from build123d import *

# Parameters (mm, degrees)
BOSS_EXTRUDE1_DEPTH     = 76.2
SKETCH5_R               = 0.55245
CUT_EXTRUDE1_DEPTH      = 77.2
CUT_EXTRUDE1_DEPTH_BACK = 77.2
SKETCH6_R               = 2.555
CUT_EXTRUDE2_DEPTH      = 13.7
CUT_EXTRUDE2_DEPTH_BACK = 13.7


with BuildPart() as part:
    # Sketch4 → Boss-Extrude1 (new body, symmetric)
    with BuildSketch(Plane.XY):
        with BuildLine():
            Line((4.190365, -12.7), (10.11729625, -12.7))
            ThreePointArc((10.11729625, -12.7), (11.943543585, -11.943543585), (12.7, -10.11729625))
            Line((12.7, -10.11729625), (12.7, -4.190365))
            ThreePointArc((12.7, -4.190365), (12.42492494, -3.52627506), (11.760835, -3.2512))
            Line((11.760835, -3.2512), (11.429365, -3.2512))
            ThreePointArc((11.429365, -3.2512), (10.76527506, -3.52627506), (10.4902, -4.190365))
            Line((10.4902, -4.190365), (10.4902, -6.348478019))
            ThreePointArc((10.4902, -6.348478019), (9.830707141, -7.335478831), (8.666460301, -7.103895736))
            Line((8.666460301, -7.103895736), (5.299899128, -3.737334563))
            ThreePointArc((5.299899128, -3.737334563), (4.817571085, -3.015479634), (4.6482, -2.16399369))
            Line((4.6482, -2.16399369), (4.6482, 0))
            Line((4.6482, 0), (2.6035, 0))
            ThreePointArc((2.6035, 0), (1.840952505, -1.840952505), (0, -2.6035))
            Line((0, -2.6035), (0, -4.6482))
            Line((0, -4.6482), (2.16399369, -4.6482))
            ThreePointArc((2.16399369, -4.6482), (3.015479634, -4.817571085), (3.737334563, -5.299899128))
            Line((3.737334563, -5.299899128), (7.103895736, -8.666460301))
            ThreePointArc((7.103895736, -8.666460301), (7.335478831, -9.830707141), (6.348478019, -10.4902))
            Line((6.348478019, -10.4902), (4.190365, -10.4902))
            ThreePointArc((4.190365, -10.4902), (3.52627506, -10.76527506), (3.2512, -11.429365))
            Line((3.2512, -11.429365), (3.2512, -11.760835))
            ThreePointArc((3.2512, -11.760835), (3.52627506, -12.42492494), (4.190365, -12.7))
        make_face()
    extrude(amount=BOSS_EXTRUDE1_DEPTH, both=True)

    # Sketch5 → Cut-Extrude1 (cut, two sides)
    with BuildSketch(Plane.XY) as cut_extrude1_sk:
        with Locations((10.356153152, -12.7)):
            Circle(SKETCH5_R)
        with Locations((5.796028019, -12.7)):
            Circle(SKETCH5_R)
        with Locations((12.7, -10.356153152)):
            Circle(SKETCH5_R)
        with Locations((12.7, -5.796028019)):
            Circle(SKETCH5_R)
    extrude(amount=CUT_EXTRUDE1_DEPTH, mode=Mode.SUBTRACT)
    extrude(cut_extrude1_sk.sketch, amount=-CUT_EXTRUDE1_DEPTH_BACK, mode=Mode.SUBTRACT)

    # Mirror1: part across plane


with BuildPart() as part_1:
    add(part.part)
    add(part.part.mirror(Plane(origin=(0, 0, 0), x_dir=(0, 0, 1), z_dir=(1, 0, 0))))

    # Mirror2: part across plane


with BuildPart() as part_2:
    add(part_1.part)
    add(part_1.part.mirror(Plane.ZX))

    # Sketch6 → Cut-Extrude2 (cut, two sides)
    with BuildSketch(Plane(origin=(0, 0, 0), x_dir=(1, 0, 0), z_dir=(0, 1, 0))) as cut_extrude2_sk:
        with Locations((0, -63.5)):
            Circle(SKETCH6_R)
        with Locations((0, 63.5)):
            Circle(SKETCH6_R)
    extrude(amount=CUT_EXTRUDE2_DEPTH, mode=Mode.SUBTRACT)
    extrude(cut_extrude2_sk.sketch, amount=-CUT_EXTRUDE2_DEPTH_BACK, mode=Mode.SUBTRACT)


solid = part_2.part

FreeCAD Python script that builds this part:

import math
import FreeCAD as App
import Part
import Sketcher
Q = App.Units.Quantity

doc = App.newDocument("Part")
params = doc.addObject("Spreadsheet::Sheet", "Params")
for row, (alias, value) in enumerate([
    ("pad1_length", "152.4 mm"),
    ("sketch3_diameter", "5.11 mm"),
], start=1):
    params.set(f"A{row}", alias)
    params.set(f"B{row}", "=" + value)
    params.setAlias(f"B{row}", alias)

body = doc.addObject("PartDesign::Body", "Body")

sketch1 = body.newObject("Sketcher::SketchObject", "Sketch")
sketch1.AttachmentSupport = (doc.getObject("XY_Plane"), [""])
sketch1.MapMode = "FlatFace"
sketch1.addGeometry([
    Part.LineSegment(App.Vector(4.19, -12.7, 0), App.Vector(10.12, -12.7, 0)),
    Part.ArcOfCircle(Part.Circle(App.Vector(10.12, -10.12, 0), App.Vector(0, 0, 1), 2.58), math.radians(-90), math.radians(0)),
    Part.LineSegment(App.Vector(12.7, -10.12, 0), App.Vector(12.7, -4.19, 0)),
    Part.ArcOfCircle(Part.Circle(App.Vector(11.76, -4.19, 0), App.Vector(0, 0, 1), 0.94), math.radians(0), math.radians(90)),
    Part.LineSegment(App.Vector(11.76, -3.25, 0), App.Vector(11.43, -3.25, 0)),
    Part.ArcOfCircle(Part.Circle(App.Vector(11.43, -4.19, 0), App.Vector(0, 0, 1), 0.94), math.radians(90), math.radians(180)),
    Part.LineSegment(App.Vector(10.49, -4.19, 0), App.Vector(10.49, -6.35, 0)),
    Part.ArcOfCircle(Part.Circle(App.Vector(9.42, -6.35, 0), App.Vector(0, 0, 1), 1.07), math.radians(-135), math.radians(0)),
    Part.LineSegment(App.Vector(8.67, -7.1, 0), App.Vector(5.3, -3.74, 0)),
    Part.ArcOfCircle(Part.Circle(App.Vector(6.87, -2.16, 0), App.Vector(0, 0, 1), 2.23), math.radians(-180), math.radians(-135)),
    Part.LineSegment(App.Vector(4.65, -2.16, 0), App.Vector(4.65, 0, 0)),
    Part.LineSegment(App.Vector(4.65, 0, 0), App.Vector(2.6, 0, 0)),
    Part.ArcOfCircle(Part.Circle(App.Vector(0, 0, 0), App.Vector(0, 0, 1), 2.6), math.radians(-90), math.radians(0)),
    Part.LineSegment(App.Vector(0, -2.6, 0), App.Vector(0, -4.65, 0)),
    Part.LineSegment(App.Vector(0, -4.65, 0), App.Vector(2.16, -4.65, 0)),
    Part.ArcOfCircle(Part.Circle(App.Vector(2.16, -6.87, 0), App.Vector(0, 0, 1), 2.23), math.radians(45), math.radians(90)),
    Part.LineSegment(App.Vector(3.74, -5.3, 0), App.Vector(7.1, -8.67, 0)),
    Part.ArcOfCircle(Part.Circle(App.Vector(6.35, -9.42, 0), App.Vector(0, 0, 1), 1.07), math.radians(-90), math.radians(45)),
    Part.LineSegment(App.Vector(6.35, -10.49, 0), App.Vector(4.19, -10.49, 0)),
    Part.ArcOfCircle(Part.Circle(App.Vector(4.19, -11.43, 0), App.Vector(0, 0, 1), 0.94), math.radians(90), math.radians(180)),
    Part.LineSegment(App.Vector(3.25, -11.43, 0), App.Vector(3.25, -11.76, 0)),
    Part.ArcOfCircle(Part.Circle(App.Vector(4.19, -11.76, 0), App.Vector(0, 0, 1), 0.94), math.radians(-180), math.radians(-90)),
], False)
sketch1.addConstraint([
    Sketcher.Constraint("Tangent", 0, 2, 1, 1),
    Sketcher.Constraint("Tangent", 1, 2, 2, 1),
    Sketcher.Constraint("Tangent", 2, 2, 3, 1),
    Sketcher.Constraint("Tangent", 3, 2, 4, 1),
    Sketcher.Constraint("Tangent", 4, 2, 5, 1),
    Sketcher.Constraint("Tangent", 5, 2, 6, 1),
    Sketcher.Constraint("Tangent", 6, 2, 7, 2),
    Sketcher.Constraint("Tangent", 7, 1, 8, 1),
    Sketcher.Constraint("Tangent", 8, 2, 9, 2),
    Sketcher.Constraint("Tangent", 9, 1, 10, 1),
    Sketcher.Constraint("Coincident", 10, 2, 11, 1),
    Sketcher.Constraint("Coincident", 11, 2, 12, 2),
    Sketcher.Constraint("Coincident", 12, 1, 13, 1),
    Sketcher.Constraint("Coincident", 13, 2, 14, 1),
    Sketcher.Constraint("Tangent", 14, 2, 15, 2),
    Sketcher.Constraint("Tangent", 15, 1, 16, 1),
    Sketcher.Constraint("Tangent", 16, 2, 17, 2),
    Sketcher.Constraint("Tangent", 17, 1, 18, 1),
    Sketcher.Constraint("Tangent", 18, 2, 19, 1),
    Sketcher.Constraint("Tangent", 19, 2, 20, 1),
    Sketcher.Constraint("Tangent", 20, 2, 21, 1),
    Sketcher.Constraint("Tangent", 21, 2, 0, 1),
    Sketcher.Constraint("Horizontal", 0),
    Sketcher.Constraint("Vertical", 2),
    Sketcher.Constraint("Horizontal", 4),
    Sketcher.Constraint("Vertical", 6),
    Sketcher.Constraint("Vertical", 10),
    Sketcher.Constraint("Horizontal", 11),
    Sketcher.Constraint("Vertical", 13),
    Sketcher.Constraint("Horizontal", 14),
    Sketcher.Constraint("Horizontal", 18),
    Sketcher.Constraint("Vertical", 20),
    Sketcher.Constraint("Coincident", 12, 3, -1, 1),
    Sketcher.Constraint("Equal", 3, 5),
    Sketcher.Constraint("Equal", 9, 15),
    Sketcher.Constraint("Equal", 7, 17),
    Sketcher.Constraint("Equal", 5, 19),
    Sketcher.Constraint("Equal", 19, 21),
    Sketcher.Constraint("PointOnObject", 10, 2, -1),
    Sketcher.Constraint("PointOnObject", 12, 1, -2),
    Sketcher.Constraint("Parallel", 8, 16),
    Sketcher.Constraint("Equal", 0, 2),
    Sketcher.Constraint("Equal", 18, 6),
    Sketcher.Constraint("Equal", 14, 10),
    Sketcher.Constraint("Equal", 11, 13),
    Sketcher.Constraint("Equal", 4, 20),
    Sketcher.Constraint("Equal", 8, 16),
    Sketcher.Constraint("DistanceY", 0, 2, -1, 1, Q("12.7 mm")),
    Sketcher.Constraint("Radius", 12, Q("2.6035 mm")),
    Sketcher.Constraint("Radius", 7, Q("1.068322 mm")),
    Sketcher.Constraint("Radius", 9, Q("2.22504 mm")),
    Sketcher.Constraint("DistanceX", 11, 2, 11, 1, Q("2.0447 mm")),
    Sketcher.Constraint("Radius", 1, Q("2.582704 mm")),
    Sketcher.Constraint("Radius", 3, Q("0.939165 mm")),
    Sketcher.Constraint("DistanceX", 9, 1, 5, 2, Q("5.842 mm")),
    Sketcher.Constraint("DistanceX", 0, 1, 0, 2, Q("5.926931 mm")),
    Sketcher.Constraint("DistanceX", 17, 3, 7, 3, Q("3.0734 mm")),
])
pad1 = body.newObject("PartDesign::Pad", "Pad")
pad1.Profile = sketch1
pad1.setExpression("Length", "Params.pad1_length")
pad1.Midplane = True

sketch2 = body.newObject("Sketcher::SketchObject", "Sketch001")
sketch2.AttachmentSupport = (doc.getObject("XY_Plane"), [""])
sketch2.MapMode = "FlatFace"
sketch2.addGeometry([
    Part.Circle(App.Vector(10.4, -12.7, 0), App.Vector(0, 0, 1), 0.6),
    Part.Circle(App.Vector(5.8, -12.7, 0), App.Vector(0, 0, 1), 0.6),
    Part.Circle(App.Vector(12.7, -10.4, 0), App.Vector(0, 0, 1), 0.6),
    Part.Circle(App.Vector(12.7, -5.8, 0), App.Vector(0, 0, 1), 0.6),
], False)
sketch2.addConstraint([
    Sketcher.Constraint("Equal", 0, 1),
    Sketcher.Constraint("Equal", 1, 2),
    Sketcher.Constraint("Equal", 2, 3),
    Sketcher.Constraint("Horizontal", 0, 3, 1, 3),
    Sketcher.Constraint("Vertical", 2, 3, 3, 3),
    Sketcher.Constraint("Diameter", 0, Q("1.1049 mm")),
    Sketcher.Constraint("DistanceY", 0, 3, -1, 1, Q("12.7 mm")),
    Sketcher.Constraint("DistanceX", -1, 1, 2, 3, Q("12.7 mm")),
    Sketcher.Constraint("DistanceX", -1, 1, 1, 3, Q("5.796028 mm")),
    Sketcher.Constraint("DistanceY", 3, 3, -1, 1, Q("5.796028 mm")),
    Sketcher.Constraint("DistanceX", -1, 1, 0, 3, Q("10.356153 mm")),
    Sketcher.Constraint("DistanceY", 2, 3, -1, 1, Q("10.356153 mm")),
])
pocket1 = body.newObject("PartDesign::Pocket", "Pocket")
pocket1.Profile = sketch2
pocket1.Type = "ThroughAll"
pocket1.Midplane = True
body2 = doc.addObject("PartDesign::Body", "Body001")
doc.recompute()

body2.BaseFeature = body
doc.recompute()

mirroring = doc.addObject("Part::Mirroring", "Mirroring")
mirroring.Source = body
mirroring.Base = App.Vector(0, 0, 0)
mirroring.Normal = App.Vector(1, 0, 0)
body3 = doc.addObject("PartDesign::Body", "Body002")
body3.BaseFeature = mirroring
boolean = body2.newObject("PartDesign::Boolean", "Boolean")
boolean.Type = "Fuse"
boolean.addObjects([body3])
doc.recompute()
body4 = doc.addObject("PartDesign::Body", "Body003")
doc.recompute()

body4.BaseFeature = body2
doc.recompute()

mirroring2 = doc.addObject("Part::Mirroring", "Mirroring001")
mirroring2.Source = body2
mirroring2.Base = App.Vector(0, 0, 0)
mirroring2.Normal = App.Vector(0, 1, 0)
body5 = doc.addObject("PartDesign::Body", "Body004")
body5.BaseFeature = mirroring2
boolean2 = body4.newObject("PartDesign::Boolean", "Boolean001")
boolean2.Type = "Fuse"
boolean2.addObjects([body5])
doc.recompute()

sketch3 = body4.newObject("Sketcher::SketchObject", "Sketch002")
sketch3.AttachmentSupport = (doc.getObject("XZ_Plane003"), [""])
sketch3.MapMode = "FlatFace"
sketch3.addGeometry([
    Part.Circle(App.Vector(0, 63.5, 0), App.Vector(0, 0, 1), 2.6),
    Part.Circle(App.Vector(0, -63.5, 0), App.Vector(0, 0, 1), 2.6),
], False)
sketch3.addConstraint([
    Sketcher.Constraint("Equal", 0, 1),
    Sketcher.Constraint("Symmetric", 0, 3, 1, 3, -1, 1),
    Sketcher.Constraint("PointOnObject", 0, 3, -2),
    Sketcher.Constraint("Diameter", 0, Q("5.11 mm")),
    Sketcher.Constraint("DistanceY", 1, 3, 0, 3, Q("127 mm")),
])
sketch3.setExpression("Constraints[3]", "Params.sketch3_diameter")
pocket2 = body4.newObject("PartDesign::Pocket", "Pocket001")
pocket2.Profile = sketch3
pocket2.Type = "ThroughAll"
pocket2.Midplane = True
mirroring.Visibility = False
mirroring2.Visibility = False

doc.recompute()
